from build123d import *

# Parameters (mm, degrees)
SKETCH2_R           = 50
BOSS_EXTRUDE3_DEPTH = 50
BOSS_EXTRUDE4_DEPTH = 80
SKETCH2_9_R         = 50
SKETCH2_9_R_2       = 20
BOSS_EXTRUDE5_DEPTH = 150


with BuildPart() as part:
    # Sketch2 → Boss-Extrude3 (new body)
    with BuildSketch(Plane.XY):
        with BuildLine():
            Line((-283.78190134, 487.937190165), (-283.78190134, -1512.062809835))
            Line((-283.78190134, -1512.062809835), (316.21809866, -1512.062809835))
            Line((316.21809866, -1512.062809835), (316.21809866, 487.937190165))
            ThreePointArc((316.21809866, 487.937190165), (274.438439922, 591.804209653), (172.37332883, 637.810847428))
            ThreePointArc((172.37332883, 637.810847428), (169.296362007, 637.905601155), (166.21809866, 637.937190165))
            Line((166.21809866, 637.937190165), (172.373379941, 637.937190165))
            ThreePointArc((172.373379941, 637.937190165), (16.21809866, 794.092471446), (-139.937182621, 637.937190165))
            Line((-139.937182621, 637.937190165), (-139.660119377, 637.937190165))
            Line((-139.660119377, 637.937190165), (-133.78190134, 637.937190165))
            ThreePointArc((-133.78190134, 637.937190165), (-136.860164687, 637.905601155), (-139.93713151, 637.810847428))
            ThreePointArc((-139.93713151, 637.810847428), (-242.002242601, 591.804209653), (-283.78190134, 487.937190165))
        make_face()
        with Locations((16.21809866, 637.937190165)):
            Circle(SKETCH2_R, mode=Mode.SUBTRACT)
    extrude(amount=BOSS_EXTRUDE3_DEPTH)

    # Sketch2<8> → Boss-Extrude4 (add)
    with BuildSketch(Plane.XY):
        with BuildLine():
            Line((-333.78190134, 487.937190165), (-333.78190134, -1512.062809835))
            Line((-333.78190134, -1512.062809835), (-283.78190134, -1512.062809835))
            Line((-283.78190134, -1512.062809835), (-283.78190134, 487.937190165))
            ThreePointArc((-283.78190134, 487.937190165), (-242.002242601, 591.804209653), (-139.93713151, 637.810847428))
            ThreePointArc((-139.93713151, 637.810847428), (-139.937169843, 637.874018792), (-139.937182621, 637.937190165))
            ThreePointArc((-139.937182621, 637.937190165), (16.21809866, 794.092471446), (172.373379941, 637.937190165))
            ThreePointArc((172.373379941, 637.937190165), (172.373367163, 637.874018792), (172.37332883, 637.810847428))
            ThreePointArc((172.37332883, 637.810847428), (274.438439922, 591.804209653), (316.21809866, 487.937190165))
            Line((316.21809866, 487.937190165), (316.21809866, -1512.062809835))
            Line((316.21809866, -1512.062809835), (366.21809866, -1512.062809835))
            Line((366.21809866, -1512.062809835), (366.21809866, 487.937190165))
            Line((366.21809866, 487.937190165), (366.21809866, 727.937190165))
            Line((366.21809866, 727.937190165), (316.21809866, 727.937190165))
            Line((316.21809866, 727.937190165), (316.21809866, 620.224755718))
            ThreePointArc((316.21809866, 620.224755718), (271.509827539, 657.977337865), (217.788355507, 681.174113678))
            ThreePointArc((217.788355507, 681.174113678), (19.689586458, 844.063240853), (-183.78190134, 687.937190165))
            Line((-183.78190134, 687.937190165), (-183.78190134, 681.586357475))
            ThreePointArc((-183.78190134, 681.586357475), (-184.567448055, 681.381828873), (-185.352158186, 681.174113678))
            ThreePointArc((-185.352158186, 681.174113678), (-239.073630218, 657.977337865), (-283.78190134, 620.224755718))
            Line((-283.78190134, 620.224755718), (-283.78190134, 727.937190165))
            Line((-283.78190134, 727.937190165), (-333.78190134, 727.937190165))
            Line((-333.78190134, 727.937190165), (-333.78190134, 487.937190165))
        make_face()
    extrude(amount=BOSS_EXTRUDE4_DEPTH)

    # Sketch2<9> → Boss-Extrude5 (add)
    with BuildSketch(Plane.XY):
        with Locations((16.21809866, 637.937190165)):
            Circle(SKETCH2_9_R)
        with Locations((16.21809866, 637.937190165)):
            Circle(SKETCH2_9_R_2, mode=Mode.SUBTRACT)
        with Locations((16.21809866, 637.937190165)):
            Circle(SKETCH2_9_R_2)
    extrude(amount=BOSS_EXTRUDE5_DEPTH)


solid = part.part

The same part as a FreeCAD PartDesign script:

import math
import FreeCAD as App
import Part
import Sketcher
from FreeCAD import Vector
Q = App.Units.Quantity

doc = App.newDocument("Part")
body = doc.addObject("PartDesign::Body", "Body")

sketch1 = body.newObject("Sketcher::SketchObject", "Sketch")
sketch1.AttachmentSupport = (doc.getObject("XY_Plane"), [""])
sketch1.MapMode = "FlatFace"
sketch1.addGeometry([
    Part.LineSegment(Vector(-284, 488, 0), Vector(-284, -1512, 0)),
    Part.LineSegment(Vector(-284, -1512, 0), Vector(316, -1512, 0)),
    Part.LineSegment(Vector(316, -1512, 0), Vector(316, 488, 0)),
    Part.ArcOfCircle(Part.Circle(Vector(166, 488, 0), Vector(0, 0, 1), 150), math.radians(0), math.radians(88)),
    Part.ArcOfCircle(Part.Circle(Vector(166, 488, 0), Vector(0, 0, 1), 150), math.radians(87.65), math.radians(90)),
    Part.LineSegment(Vector(166, 638, 0), Vector(172, 638, 0)),
    Part.ArcOfCircle(Part.Circle(Vector(16, 638, 0), Vector(0, 0, 1), 156), math.radians(0), math.radians(180)),
    Part.LineSegment(Vector(-140, 638, 0), Vector(-134, 638, 0)),
    Part.ArcOfCircle(Part.Circle(Vector(-134, 488, 0), Vector(0, 0, 1), 150), math.radians(90), math.radians(92.35)),
    Part.ArcOfCircle(Part.Circle(Vector(-134, 488, 0), Vector(0, 0, 1), 150), math.radians(92), math.radians(180)),
    Part.Circle(Vector(16, 638, 0), Vector(0, 0, 1), 50),
], False)
sketch1.addConstraint([
    Sketcher.Constraint("Coincident", 0, 2, 1, 1),
    Sketcher.Constraint("Coincident", 1, 2, 2, 1),
    Sketcher.Constraint("Tangent", 2, 2, 3, 1),
    Sketcher.Constraint("Tangent", 3, 2, 4, 1),
    Sketcher.Constraint("Tangent", 4, 2, 5, 1),
    Sketcher.Constraint("Coincident", 5, 2, 6, 1),
    Sketcher.Constraint("Coincident", 6, 2, 7, 1),
    Sketcher.Constraint("Tangent", 7, 2, 8, 1),
    Sketcher.Constraint("Tangent", 8, 2, 9, 1),
    Sketcher.Constraint("Tangent", 9, 2, 0, 1),
    Sketcher.Constraint("Vertical", 0),
    Sketcher.Constraint("Horizontal", 1),
    Sketcher.Constraint("Vertical", 2),
    Sketcher.Constraint("Horizontal", 5),
    Sketcher.Constraint("Horizontal", 7),
    Sketcher.Constraint("Coincident", 10, 3, 6, 3),
    Sketcher.Constraint("Equal", 4, 8),
    Sketcher.Constraint("Equal", 3, 9),
    Sketcher.Constraint("Horizontal", 4, 3, 8, 3),
    Sketcher.Constraint("Horizontal", 10, 3, 4, 2),
    Sketcher.Constraint("Horizontal", 3, 2, 8, 2),
    Sketcher.Constraint("Vertical", 9, 3, 7, 2),
    Sketcher.Constraint("Equal", 5, 7),
    Sketcher.Constraint("Diameter", 10, Q("100 mm")),
    Sketcher.Constraint("Radius", 3, Q("150 mm")),
    Sketcher.Constraint("DistanceX", 1, 1, 1, 2, Q("600 mm")),
    Sketcher.Constraint("DistanceY", 0, 2, 0, 1, Q("2000 mm")),
    Sketcher.Constraint("Radius", 6, Q("156.155281 mm")),
    Sketcher.Constraint("DistanceX", -1, 1, 3, 3, Q("166.218099 mm")),
    Sketcher.Constraint("DistanceY", -1, 1, 3, 3, Q("487.93719 mm")),
    Sketcher.Constraint("DistanceX", -1, 1, 3, 2, Q("172.373329 mm")),
])
pad1 = body.newObject("PartDesign::Pad", "Pad")
pad1.Profile = sketch1
pad1.Length = 50

sketch2 = body.newObject("Sketcher::SketchObject", "Sketch001")
sketch2.AttachmentSupport = (doc.getObject("XY_Plane"), [""])
sketch2.MapMode = "FlatFace"
sketch2.addGeometry([
    Part.LineSegment(Vector(-333.78, -1512.06, 0), Vector(-283.78, -1512.06, 0)),
    Part.LineSegment(Vector(-283.78, -1512.06, 0), Vector(-283.78, 487.94, 0)),
    Part.ArcOfCircle(Part.Circle(Vector(-133.78, 487.94, 0), Vector(0, 0, 1), 150), math.radians(92), math.radians(180)),
    Part.ArcOfCircle(Part.Circle(Vector(16.22, 637.94, 0), Vector(0, 0, 1), 156.16), math.radians(-180), math.radians(-179.95)),
    Part.ArcOfCircle(Part.Circle(Vector(16.22, 637.94, 0), Vector(0, 0, 1), 156.16), math.radians(0), math.radians(180)),
    Part.ArcOfCircle(Part.Circle(Vector(16.22, 637.94, 0), Vector(0, 0, 1), 156.16), math.radians(-0.05), math.radians(0)),
    Part.ArcOfCircle(Part.Circle(Vector(166.22, 487.94, 0), Vector(0, 0, 1), 150), math.radians(0), math.radians(88)),
    Part.LineSegment(Vector(316.22, 487.94, 0), Vector(316.22, -1512.06, 0)),
    Part.LineSegment(Vector(316.22, -1512.06, 0), Vector(366.22, -1512.06, 0)),
    Part.LineSegment(Vector(366.22, -1512.06, 0), Vector(366.22, 727.94, 0)),
    Part.LineSegment(Vector(366.22, 727.94, 0), Vector(316.22, 727.94, 0)),
    Part.LineSegment(Vector(316.22, 727.94, 0), Vector(316.22, 620.22, 0)),
    Part.ArcOfCircle(Part.Circle(Vector(166.22, 487.94, 0), Vector(0, 0, 1), 200), math.radians(41), math.radians(75)),
    Part.ArcOfCircle(Part.Circle(Vector(16.22, 637.94, 0), Vector(0, 0, 1), 206.16), math.radians(12), math.radians(166)),
    Part.LineSegment(Vector(-183.78, 687.94, 0), Vector(-183.78, 681.59, 0)),
    Part.ArcOfCircle(Part.Circle(Vector(-133.78, 487.94, 0), Vector(0, 0, 1), 200), math.radians(104.48), math.radians(104.94)),
    Part.ArcOfCircle(Part.Circle(Vector(-133.78, 487.94, 0), Vector(0, 0, 1), 200), math.radians(105), math.radians(139)),
    Part.LineSegment(Vector(-283.78, 620.22, 0), Vector(-283.78, 727.94, 0)),
    Part.LineSegment(Vector(-283.78, 727.94, 0), Vector(-333.78, 727.94, 0)),
    Part.LineSegment(Vector(-333.78, 727.94, 0), Vector(-333.78, -1512.06, 0)),
], False)
sketch2.addConstraint([
    Sketcher.Constraint("Coincident", 0, 2, 1, 1),
    Sketcher.Constraint("Tangent", 1, 2, 2, 2),
    Sketcher.Constraint("Coincident", 2, 1, 3, 2),
    Sketcher.Constraint("Tangent", 3, 1, 4, 2),
    Sketcher.Constraint("Tangent", 4, 1, 5, 2),
    Sketcher.Constraint("Coincident", 5, 1, 6, 2),
    Sketcher.Constraint("Tangent", 6, 1, 7, 1),
    Sketcher.Constraint("Coincident", 7, 2, 8, 1),
    Sketcher.Constraint("Coincident", 8, 2, 9, 1),
    Sketcher.Constraint("Coincident", 9, 2, 10, 1),
    Sketcher.Constraint("Coincident", 10, 2, 11, 1),
    Sketcher.Constraint("Coincident", 11, 2, 12, 1),
    Sketcher.Constraint("Coincident", 12, 2, 13, 1),
    Sketcher.Constraint("Coincident", 13, 2, 14, 1),
    Sketcher.Constraint("Coincident", 14, 2, 15, 1),
    Sketcher.Constraint("Tangent", 15, 2, 16, 1),
    Sketcher.Constraint("Coincident", 16, 2, 17, 1),
    Sketcher.Constraint("Coincident", 17, 2, 18, 1),
    Sketcher.Constraint("Coincident", 18, 2, 19, 1),
    Sketcher.Constraint("Coincident", 19, 2, 0, 1),
    Sketcher.Constraint("Horizontal", 0),
    Sketcher.Constraint("Vertical", 1),
    Sketcher.Constraint("Vertical", 7),
    Sketcher.Constraint("Horizontal", 8),
    Sketcher.Constraint("Vertical", 9),
    Sketcher.Constraint("Horizontal", 10),
    Sketcher.Constraint("Vertical", 11),
    Sketcher.Constraint("Vertical", 14),
    Sketcher.Constraint("Vertical", 17),
    Sketcher.Constraint("Horizontal", 18),
    Sketcher.Constraint("Vertical", 19),
    Sketcher.Constraint("Coincident", 12, 3, 6, 3),
    Sketcher.Constraint("Coincident", 13, 3, 4, 3),
    Sketcher.Constraint("Coincident", 16, 3, 2, 3),
    Sketcher.Constraint("Equal", 3, 5),
    Sketcher.Constraint("Equal", 2, 6),
    Sketcher.Constraint("Equal", 12, 16),
    Sketcher.Constraint("Horizontal", 2, 3, 6, 3),
    Sketcher.Constraint("Horizontal", 13, 3, 3, 1),
    Sketcher.Constraint("Horizontal", 3, 1, 4, 1),
    Sketcher.Constraint("Horizontal", 0, 2, 7, 2),
    Sketcher.Constraint("Horizontal", 12, 2, 15, 2),
    Sketcher.Constraint("Horizontal", 11, 2, 16, 2),
    Sketcher.Constraint("Horizontal", 10, 2, 17, 2),
    Sketcher.Constraint("Vertical", 7, 2, 10, 2),
    Sketcher.Constraint("Equal", 0, 8),
    Sketcher.Constraint("Radius", 2, Q("150 mm")),
    Sketcher.Constraint("Radius", 12, Q("200 mm")),
    Sketcher.Constraint("DistanceX", 0, 1, 0, 2, Q("50 mm")),
    Sketcher.Constraint("DistanceY", 1, 1, 1, 2, Q("2000 mm")),
    Sketcher.Constraint("DistanceY", 9, 1, 9, 2, Q("2240 mm")),
    Sketcher.Constraint("DistanceY", 2, 3, 3, 3, Q("150.000001 mm")),
    Sketcher.Constraint("DistanceX", 2, 3, 4, 3, Q("150 mm")),
    Sketcher.Constraint("DistanceX", 4, 3, 6, 3, Q("150 mm")),
    Sketcher.Constraint("DistanceY", 3, 1, 13, 2, Q("50 mm")),
    Sketcher.Constraint("DistanceX", 13, 2, 16, 3, Q("50 mm")),
    Sketcher.Constraint("Radius", 4, Q("156.155281 mm")),
    Sketcher.Constraint("DistanceX", -1, 1, 3, 3, Q("16.221001 mm")),
    Sketcher.Constraint("Radius", 3, Q("156.158183 mm")),
    Sketcher.Constraint("Radius", 15, Q("199.999965 mm")),
    Sketcher.Constraint("DistanceY", -1, 1, 2, 3, Q("487.93719 mm")),
])
pad2 = body.newObject("PartDesign::Pad", "Pad001")
pad2.Profile = sketch2
pad2.Length = 80

sketch3 = body.newObject("Sketcher::SketchObject", "Sketch002")
sketch3.AttachmentSupport = (doc.getObject("XY_Plane"), [""])
sketch3.MapMode = "FlatFace"
sketch3.addGeometry(Part.Circle(Vector(16, 638, 0), Vector(0, 0, 1), 50), False)
sketch3.addConstraint([
    Sketcher.Constraint("Diameter", 0, Q("100 mm")),
    Sketcher.Constraint("DistanceX", -1, 1, 0, 3, Q("16.218099 mm")),
    Sketcher.Constraint("DistanceY", -1, 1, 0, 3, Q("637.93719 mm")),
])
pad3 = body.newObject("PartDesign::Pad", "Pad002")
pad3.Profile = sketch3
pad3.Length = 150

doc.recompute()
